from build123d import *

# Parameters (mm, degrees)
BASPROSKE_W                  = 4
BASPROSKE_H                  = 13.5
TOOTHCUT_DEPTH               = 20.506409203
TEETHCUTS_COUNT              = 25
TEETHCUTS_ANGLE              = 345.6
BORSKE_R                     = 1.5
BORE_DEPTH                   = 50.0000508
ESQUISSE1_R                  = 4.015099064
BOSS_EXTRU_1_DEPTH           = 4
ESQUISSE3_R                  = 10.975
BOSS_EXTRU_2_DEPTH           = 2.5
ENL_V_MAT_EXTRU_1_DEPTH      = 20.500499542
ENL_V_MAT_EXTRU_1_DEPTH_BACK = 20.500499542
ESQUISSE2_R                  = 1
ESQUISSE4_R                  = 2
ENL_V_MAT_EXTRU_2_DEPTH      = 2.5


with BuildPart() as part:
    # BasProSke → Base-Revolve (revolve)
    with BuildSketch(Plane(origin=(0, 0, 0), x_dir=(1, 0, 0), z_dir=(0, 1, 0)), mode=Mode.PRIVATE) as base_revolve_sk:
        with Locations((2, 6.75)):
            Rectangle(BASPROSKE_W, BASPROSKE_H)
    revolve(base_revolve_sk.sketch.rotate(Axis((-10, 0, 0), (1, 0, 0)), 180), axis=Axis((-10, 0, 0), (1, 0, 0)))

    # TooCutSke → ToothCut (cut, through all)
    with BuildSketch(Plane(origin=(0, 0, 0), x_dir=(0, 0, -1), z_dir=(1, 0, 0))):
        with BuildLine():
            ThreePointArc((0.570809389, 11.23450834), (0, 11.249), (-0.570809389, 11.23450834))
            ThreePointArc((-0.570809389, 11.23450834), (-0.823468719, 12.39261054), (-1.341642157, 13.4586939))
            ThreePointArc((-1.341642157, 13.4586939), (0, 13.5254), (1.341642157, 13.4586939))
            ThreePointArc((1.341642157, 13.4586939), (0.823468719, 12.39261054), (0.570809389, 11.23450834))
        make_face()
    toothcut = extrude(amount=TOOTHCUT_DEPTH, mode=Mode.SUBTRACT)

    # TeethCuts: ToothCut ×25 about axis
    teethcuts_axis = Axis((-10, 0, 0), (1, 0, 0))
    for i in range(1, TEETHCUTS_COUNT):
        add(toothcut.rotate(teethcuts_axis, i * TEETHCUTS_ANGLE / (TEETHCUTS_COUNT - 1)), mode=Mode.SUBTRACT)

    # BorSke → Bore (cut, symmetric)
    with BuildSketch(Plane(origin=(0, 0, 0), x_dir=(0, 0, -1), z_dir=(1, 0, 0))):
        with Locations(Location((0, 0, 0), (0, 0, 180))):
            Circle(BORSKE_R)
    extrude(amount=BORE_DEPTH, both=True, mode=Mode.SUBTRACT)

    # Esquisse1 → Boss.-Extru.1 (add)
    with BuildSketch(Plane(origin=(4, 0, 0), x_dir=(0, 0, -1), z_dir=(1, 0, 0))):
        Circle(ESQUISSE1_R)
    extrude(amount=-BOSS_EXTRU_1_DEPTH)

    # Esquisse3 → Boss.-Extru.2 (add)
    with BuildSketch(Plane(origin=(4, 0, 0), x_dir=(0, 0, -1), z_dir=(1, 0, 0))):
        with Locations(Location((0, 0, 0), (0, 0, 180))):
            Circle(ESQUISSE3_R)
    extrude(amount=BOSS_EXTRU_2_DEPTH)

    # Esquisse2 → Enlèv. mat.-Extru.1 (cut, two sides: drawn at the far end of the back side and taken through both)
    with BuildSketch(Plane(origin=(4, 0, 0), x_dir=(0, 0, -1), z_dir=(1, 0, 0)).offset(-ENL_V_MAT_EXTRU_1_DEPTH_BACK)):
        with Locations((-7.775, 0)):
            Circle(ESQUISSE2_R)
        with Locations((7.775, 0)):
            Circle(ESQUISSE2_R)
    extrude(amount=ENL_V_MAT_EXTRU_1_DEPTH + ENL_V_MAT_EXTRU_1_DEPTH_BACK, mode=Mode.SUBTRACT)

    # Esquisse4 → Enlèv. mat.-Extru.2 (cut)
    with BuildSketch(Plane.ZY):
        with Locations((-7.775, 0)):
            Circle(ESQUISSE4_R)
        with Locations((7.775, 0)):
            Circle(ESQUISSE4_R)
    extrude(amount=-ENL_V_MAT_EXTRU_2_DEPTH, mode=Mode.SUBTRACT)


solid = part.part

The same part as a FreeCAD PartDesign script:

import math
import FreeCAD as App
import Part
import Sketcher
from FreeCAD import Vector


def add_polygon(sketch, points):
    """Adds a closed chain of lines whose ends are joined by coincident constraints."""
    first, n = sketch.GeometryCount, len(points)
    for a, b in zip(points, points[1:] + points[:1]):
        sketch.addGeometry(Part.LineSegment(App.Vector(*a, 0), App.Vector(*b, 0)), False)
    for i in range(n):
        sketch.addConstraint(Sketcher.Constraint("Coincident", first + i, 2, first + (i + 1) % n, 1))

doc = App.newDocument("Part")
body = doc.addObject("PartDesign::Body", "Body")

# Sketch on XZ plane
sketch1 = body.newObject("Sketcher::SketchObject", "Sketch")
sketch1.AttachmentSupport = (doc.getObject("XZ_Plane"), [""])
sketch1.MapMode = "FlatFace"
add_polygon(sketch1, [(0, -13.5), (0, 0), (4, 0), (4, -13.5)])  # lines 0-3
sketch1.addConstraint([
    Sketcher.Constraint("Vertical", 0),
    Sketcher.Constraint("Horizontal", 1),
    Sketcher.Constraint("Vertical", 2),
    Sketcher.Constraint("Horizontal", 3),
    Sketcher.Constraint("Coincident", 0, 2, -1, 1),
    Sketcher.Constraint("DistanceX", 1, 1, 1, 2, 4.0),
    Sketcher.Constraint("DistanceY", 0, 1, 0, 2, 13.5),
])
revolution = body.newObject("PartDesign::Revolution", "Revolution")
revolution.Profile = sketch1
revolution.ReferenceAxis = (sketch1, ["H_Axis"])
revolution.Angle = 360

# Sketch on YZ plane
sketch2 = body.newObject("Sketcher::SketchObject", "Sketch001")
sketch2.AttachmentSupport = (doc.getObject("YZ_Plane"), [""])
sketch2.MapMode = "FlatFace"
sketch2.addGeometry([
    Part.ArcOfCircle(Part.Circle(Vector(0, 0, 0), Vector(0, 0, 1), 11.2), math.radians(-2.91), math.radians(2.91)),
    Part.ArcOfCircle(Part.Circle(Vector(10.8, -5.5, 0), Vector(0, 0, 1), 5), math.radians(57), math.radians(85)),
    Part.ArcOfCircle(Part.Circle(Vector(0, 0, 0), Vector(0, 0, 1), 13.5), math.radians(-5.69), math.radians(5.69)),
    Part.ArcOfCircle(Part.Circle(Vector(10.8, 5.5, 0), Vector(0, 0, 1), 5), math.radians(-85), math.radians(-57)),
], False)
sketch2.addConstraint([
    Sketcher.Constraint("Coincident", 0, 1, 1, 2),
    Sketcher.Constraint("Coincident", 1, 1, 2, 1),
    Sketcher.Constraint("Coincident", 2, 2, 3, 2),
    Sketcher.Constraint("Coincident", 3, 1, 0, 2),
    Sketcher.Constraint("Coincident", 0, 3, -1, 1),
    Sketcher.Constraint("Coincident", 2, 3, -1, 1),
    Sketcher.Constraint("Equal", 1, 3),
    Sketcher.Constraint("Symmetric", 1, 3, 3, 3, -1),
    Sketcher.Constraint("Radius", 1, 5.0),
    Sketcher.Constraint("Radius", 0, 11.249),
    Sketcher.Constraint("Radius", 2, 13.5254),
    Sketcher.Constraint("DistanceX", 1, 3, 0, 1, 0.4792),
    Sketcher.Constraint("DistanceX", -1, 1, 1, 3, 10.755308),
])
pocket1 = body.newObject("PartDesign::Pocket", "Pocket")
pocket1.Profile = sketch2
pocket1.Type = "ThroughAll"
pocket1.Reversed = True
doc.recompute()

polarpattern = body.newObject("PartDesign::PolarPattern", "PolarPattern")
polarpattern.Originals = [pocket1]
polarpattern.Axis = (doc.getObject("X_Axis"), [""])
polarpattern.Angle = 360
polarpattern.Occurrences = 25
body.Tip = polarpattern

# Sketch on YZ plane
sketch3 = body.newObject("Sketcher::SketchObject", "Sketch002")
sketch3.AttachmentSupport = (doc.getObject("YZ_Plane"), [""])
sketch3.MapMode = "FlatFace"
sketch3.addGeometry(Part.Circle(Vector(0, 0, 0), Vector(0, 0, 1), 1.5), False)
sketch3.addConstraint([
    Sketcher.Constraint("Coincident", 0, 3, -1, 1),
    Sketcher.Constraint("Diameter", 0, 3.0),
])
pocket2 = body.newObject("PartDesign::Pocket", "Pocket001")
pocket2.Profile = sketch3
pocket2.Length = 100.000102
pocket2.Midplane = True

# Sketch on YZ plane
sketch4 = body.newObject("Sketcher::SketchObject", "Sketch003")
sketch4.AttachmentSupport = (doc.getObject("YZ_Plane"), [""])
sketch4.MapMode = "FlatFace"
sketch4.AttachmentOffset = App.Placement(Vector(0, 0, 4), App.Rotation())
sketch4.addGeometry(Part.Circle(Vector(0, 0, 0), Vector(0, 0, 1), 4), False)
sketch4.addConstraint([
    Sketcher.Constraint("Coincident", 0, 3, -1, 1),
    Sketcher.Constraint("Diameter", 0, 8.030198),
])
pad1 = body.newObject("PartDesign::Pad", "Pad")
pad1.Profile = sketch4
pad1.Length = 4
pad1.Reversed = True

# Sketch on YZ plane
sketch5 = body.newObject("Sketcher::SketchObject", "Sketch004")
sketch5.AttachmentSupport = (doc.getObject("YZ_Plane"), [""])
sketch5.MapMode = "FlatFace"
sketch5.AttachmentOffset = App.Placement(Vector(0, 0, 4), App.Rotation())
sketch5.addGeometry(Part.Circle(Vector(0, 0, 0), Vector(0, 0, 1), 11), False)
sketch5.addConstraint([
    Sketcher.Constraint("Coincident", 0, 3, -1, 1),
    Sketcher.Constraint("Diameter", 0, 21.95),
])
pad2 = body.newObject("PartDesign::Pad", "Pad001")
pad2.Profile = sketch5
pad2.Length = 2.5

# Sketch on YZ plane
sketch6 = body.newObject("Sketcher::SketchObject", "Sketch005")
sketch6.AttachmentSupport = (doc.getObject("YZ_Plane"), [""])
sketch6.MapMode = "FlatFace"
sketch6.AttachmentOffset = App.Placement(Vector(0, 0, 4), App.Rotation())
sketch6.addGeometry([
    Part.Circle(Vector(0, 7.8, 0), Vector(0, 0, 1), 1),
    Part.Circle(Vector(0, -7.8, 0), Vector(0, 0, 1), 1),
], False)
sketch6.addConstraint([
    Sketcher.Constraint("Equal", 0, 1),
    Sketcher.Constraint("Symmetric", 0, 3, 1, 3, -1, 1),
    Sketcher.Constraint("PointOnObject", 0, 3, -2),
    Sketcher.Constraint("Diameter", 0, 2.0),
    Sketcher.Constraint("DistanceY", 1, 3, 0, 3, 15.55),
])
pocket3 = body.newObject("PartDesign::Pocket", "Pocket002")
pocket3.Profile = sketch6
pocket3.Type = "ThroughAll"
pocket3.Midplane = True

# Sketch on YZ plane
sketch7 = body.newObject("Sketcher::SketchObject", "Sketch006")
sketch7.AttachmentSupport = (doc.getObject("YZ_Plane"), [""])
sketch7.MapMode = "FlatFace"
sketch7.addGeometry([
    Part.Circle(Vector(0, -7.8, 0), Vector(0, 0, 1), 2),
    Part.Circle(Vector(0, 7.8, 0), Vector(0, 0, 1), 2),
], False)
sketch7.addConstraint([
    Sketcher.Constraint("Equal", 0, 1),
    Sketcher.Constraint("Symmetric", 0, 3, 1, 3, -1, 1),
    Sketcher.Constraint("PointOnObject", 0, 3, -2),
    Sketcher.Constraint("Diameter", 0, 4.0),
    Sketcher.Constraint("DistanceY", 0, 3, 1, 3, 15.55),
])
pocket4 = body.newObject("PartDesign::Pocket", "Pocket003")
pocket4.Profile = sketch7
pocket4.Length = 2.5
pocket4.Reversed = True

doc.recompute()
